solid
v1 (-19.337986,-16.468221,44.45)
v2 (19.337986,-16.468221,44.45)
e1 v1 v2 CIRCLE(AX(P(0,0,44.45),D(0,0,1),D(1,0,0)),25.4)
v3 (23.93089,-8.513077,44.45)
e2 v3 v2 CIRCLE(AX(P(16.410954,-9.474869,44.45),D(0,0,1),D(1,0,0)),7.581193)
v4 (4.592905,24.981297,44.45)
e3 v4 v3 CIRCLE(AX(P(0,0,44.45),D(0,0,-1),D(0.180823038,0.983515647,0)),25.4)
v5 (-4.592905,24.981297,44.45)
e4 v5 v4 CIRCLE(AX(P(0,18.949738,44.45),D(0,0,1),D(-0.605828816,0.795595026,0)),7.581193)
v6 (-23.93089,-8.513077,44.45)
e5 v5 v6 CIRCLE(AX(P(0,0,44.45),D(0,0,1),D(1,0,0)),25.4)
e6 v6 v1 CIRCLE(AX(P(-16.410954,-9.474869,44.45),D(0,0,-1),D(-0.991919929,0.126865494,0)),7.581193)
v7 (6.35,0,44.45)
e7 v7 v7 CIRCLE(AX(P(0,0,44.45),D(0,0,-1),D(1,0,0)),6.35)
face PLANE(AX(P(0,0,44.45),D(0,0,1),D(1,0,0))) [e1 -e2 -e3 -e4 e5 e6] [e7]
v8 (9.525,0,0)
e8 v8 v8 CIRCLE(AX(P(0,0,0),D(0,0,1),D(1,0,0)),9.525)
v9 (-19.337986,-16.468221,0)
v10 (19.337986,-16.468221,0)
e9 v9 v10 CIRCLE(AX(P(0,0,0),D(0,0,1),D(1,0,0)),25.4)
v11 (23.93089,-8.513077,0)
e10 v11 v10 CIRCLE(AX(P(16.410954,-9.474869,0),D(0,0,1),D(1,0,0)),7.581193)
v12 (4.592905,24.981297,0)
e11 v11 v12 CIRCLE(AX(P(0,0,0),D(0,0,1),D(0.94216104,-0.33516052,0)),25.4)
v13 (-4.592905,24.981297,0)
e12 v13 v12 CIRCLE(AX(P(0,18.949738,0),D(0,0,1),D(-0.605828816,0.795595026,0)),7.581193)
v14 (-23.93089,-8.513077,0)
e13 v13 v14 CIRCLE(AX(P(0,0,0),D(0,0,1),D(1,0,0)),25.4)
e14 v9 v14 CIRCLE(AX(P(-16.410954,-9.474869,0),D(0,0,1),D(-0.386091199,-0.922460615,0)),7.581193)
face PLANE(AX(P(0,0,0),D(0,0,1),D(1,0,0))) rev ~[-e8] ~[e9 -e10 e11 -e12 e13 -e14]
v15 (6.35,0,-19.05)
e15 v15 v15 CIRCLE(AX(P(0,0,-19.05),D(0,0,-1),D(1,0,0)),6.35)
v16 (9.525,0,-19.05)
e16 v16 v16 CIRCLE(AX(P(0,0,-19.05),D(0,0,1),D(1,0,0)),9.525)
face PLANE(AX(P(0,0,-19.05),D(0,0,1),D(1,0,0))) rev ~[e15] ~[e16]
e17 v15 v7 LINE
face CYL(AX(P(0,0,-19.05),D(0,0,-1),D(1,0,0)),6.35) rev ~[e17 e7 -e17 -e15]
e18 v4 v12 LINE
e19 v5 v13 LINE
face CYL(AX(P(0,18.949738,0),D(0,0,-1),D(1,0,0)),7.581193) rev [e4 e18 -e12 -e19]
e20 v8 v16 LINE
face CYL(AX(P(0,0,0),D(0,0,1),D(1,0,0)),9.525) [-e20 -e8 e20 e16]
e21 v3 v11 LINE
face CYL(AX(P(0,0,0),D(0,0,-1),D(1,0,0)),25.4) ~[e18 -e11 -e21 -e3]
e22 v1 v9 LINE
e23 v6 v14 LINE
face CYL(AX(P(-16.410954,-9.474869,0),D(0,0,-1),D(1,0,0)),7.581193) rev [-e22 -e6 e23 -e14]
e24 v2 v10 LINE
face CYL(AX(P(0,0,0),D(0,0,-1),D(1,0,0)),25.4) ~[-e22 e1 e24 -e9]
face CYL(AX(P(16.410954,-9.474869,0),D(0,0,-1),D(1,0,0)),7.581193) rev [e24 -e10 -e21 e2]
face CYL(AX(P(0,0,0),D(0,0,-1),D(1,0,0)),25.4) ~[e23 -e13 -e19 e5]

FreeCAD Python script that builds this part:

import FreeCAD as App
import Part
import Sketcher

V = App.Vector
Q = App.Units.Quantity

doc = App.newDocument("Part")
body = doc.addObject("PartDesign::Body", "Body")

sketch1 = body.newObject("Sketcher::SketchObject", "Sketch")
sketch1.AttachmentSupport = (doc.getObject("XY_Plane"), [""])
sketch1.MapMode = "FlatFace"
sketch1.addGeometry(Part.Circle(V(0, 0, 0), V(0, 0, 1), 25), False)
sketch1.addConstraint([
    Sketcher.Constraint("Coincident", 0, 3, -1, 1),
    Sketcher.Constraint("Diameter", 0, Q("2 in")),
])
pad1 = body.newObject("PartDesign::Pad", "Pad")
pad1.Profile = sketch1
pad1.Length = Q("1.75 in")

sketch2 = body.newObject("Sketcher::SketchObject", "Sketch001")
sketch2.AttachmentSupport = (doc.getObject("XY_Plane"), [""])
sketch2.MapMode = "FlatFace"
sketch2.addGeometry(Part.Circle(V(0, 0, 0), V(0, 0, 1), 10), False)
sketch2.addConstraint([
    Sketcher.Constraint("Coincident", 0, 3, -1, 1),
    Sketcher.Constraint("Diameter", 0, Q("0.75 in")),
])
pad2 = body.newObject("PartDesign::Pad", "Pad001")
pad2.Profile = sketch2
pad2.Length = Q("0.75 in")
pad2.Reversed = True

sketch3 = body.newObject("Sketcher::SketchObject", "Sketch002")
sketch3.AttachmentSupport = (doc.getObject("XY_Plane"), [""])
sketch3.MapMode = "FlatFace"
sketch3.AttachmentOffset = App.Placement(V(0, 0, -0.75 * 25.4), App.Rotation())
sketch3.addGeometry(Part.Circle(V(0, 0, 0), V(0, 0, 1), 6), False)
sketch3.addConstraint([
    Sketcher.Constraint("Coincident", 0, 3, -1, 1),
    Sketcher.Constraint("Diameter", 0, Q("0.5 in")),
])
pocket1 = body.newObject("PartDesign::Pocket", "Pocket")
pocket1.Profile = sketch3
pocket1.Length = Q("3 in")
pocket1.Reversed = True

sketch4 = body.newObject("Sketcher::SketchObject", "Sketch003")
sketch4.AttachmentSupport = (doc.getObject("XY_Plane"), [""])
sketch4.MapMode = "FlatFace"
sketch4.addGeometry([
    Part.Circle(V(0, 19, 0), V(0, 0, 1), 8),
    Part.Circle(V(-16, -9, 0), V(0, 0, 1), 8),
    Part.Circle(V(16, -9, 0), V(0, 0, 1), 8),
], False)
sketch4.addConstraint([
    Sketcher.Constraint("Equal", 0, 1),
    Sketcher.Constraint("Equal", 1, 2),
    Sketcher.Constraint("Symmetric", 1, 3, 2, 3, -2),
    Sketcher.Constraint("PointOnObject", 0, 3, -2),
    Sketcher.Constraint("Diameter", 0, 15.162386),
    Sketcher.Constraint("DistanceY", -1, 1, 0, 3, 18.949738),
    Sketcher.Constraint("DistanceY", 1, 3, -1, 1, 9.474869),
    Sketcher.Constraint("DistanceX", 1, 3, -1, 1, 16.410954),
])
pocket2 = body.newObject("PartDesign::Pocket", "Pocket001")
pocket2.Profile = sketch4
pocket2.Length = Q("1.75 in")
pocket2.Reversed = True

doc.recompute()
